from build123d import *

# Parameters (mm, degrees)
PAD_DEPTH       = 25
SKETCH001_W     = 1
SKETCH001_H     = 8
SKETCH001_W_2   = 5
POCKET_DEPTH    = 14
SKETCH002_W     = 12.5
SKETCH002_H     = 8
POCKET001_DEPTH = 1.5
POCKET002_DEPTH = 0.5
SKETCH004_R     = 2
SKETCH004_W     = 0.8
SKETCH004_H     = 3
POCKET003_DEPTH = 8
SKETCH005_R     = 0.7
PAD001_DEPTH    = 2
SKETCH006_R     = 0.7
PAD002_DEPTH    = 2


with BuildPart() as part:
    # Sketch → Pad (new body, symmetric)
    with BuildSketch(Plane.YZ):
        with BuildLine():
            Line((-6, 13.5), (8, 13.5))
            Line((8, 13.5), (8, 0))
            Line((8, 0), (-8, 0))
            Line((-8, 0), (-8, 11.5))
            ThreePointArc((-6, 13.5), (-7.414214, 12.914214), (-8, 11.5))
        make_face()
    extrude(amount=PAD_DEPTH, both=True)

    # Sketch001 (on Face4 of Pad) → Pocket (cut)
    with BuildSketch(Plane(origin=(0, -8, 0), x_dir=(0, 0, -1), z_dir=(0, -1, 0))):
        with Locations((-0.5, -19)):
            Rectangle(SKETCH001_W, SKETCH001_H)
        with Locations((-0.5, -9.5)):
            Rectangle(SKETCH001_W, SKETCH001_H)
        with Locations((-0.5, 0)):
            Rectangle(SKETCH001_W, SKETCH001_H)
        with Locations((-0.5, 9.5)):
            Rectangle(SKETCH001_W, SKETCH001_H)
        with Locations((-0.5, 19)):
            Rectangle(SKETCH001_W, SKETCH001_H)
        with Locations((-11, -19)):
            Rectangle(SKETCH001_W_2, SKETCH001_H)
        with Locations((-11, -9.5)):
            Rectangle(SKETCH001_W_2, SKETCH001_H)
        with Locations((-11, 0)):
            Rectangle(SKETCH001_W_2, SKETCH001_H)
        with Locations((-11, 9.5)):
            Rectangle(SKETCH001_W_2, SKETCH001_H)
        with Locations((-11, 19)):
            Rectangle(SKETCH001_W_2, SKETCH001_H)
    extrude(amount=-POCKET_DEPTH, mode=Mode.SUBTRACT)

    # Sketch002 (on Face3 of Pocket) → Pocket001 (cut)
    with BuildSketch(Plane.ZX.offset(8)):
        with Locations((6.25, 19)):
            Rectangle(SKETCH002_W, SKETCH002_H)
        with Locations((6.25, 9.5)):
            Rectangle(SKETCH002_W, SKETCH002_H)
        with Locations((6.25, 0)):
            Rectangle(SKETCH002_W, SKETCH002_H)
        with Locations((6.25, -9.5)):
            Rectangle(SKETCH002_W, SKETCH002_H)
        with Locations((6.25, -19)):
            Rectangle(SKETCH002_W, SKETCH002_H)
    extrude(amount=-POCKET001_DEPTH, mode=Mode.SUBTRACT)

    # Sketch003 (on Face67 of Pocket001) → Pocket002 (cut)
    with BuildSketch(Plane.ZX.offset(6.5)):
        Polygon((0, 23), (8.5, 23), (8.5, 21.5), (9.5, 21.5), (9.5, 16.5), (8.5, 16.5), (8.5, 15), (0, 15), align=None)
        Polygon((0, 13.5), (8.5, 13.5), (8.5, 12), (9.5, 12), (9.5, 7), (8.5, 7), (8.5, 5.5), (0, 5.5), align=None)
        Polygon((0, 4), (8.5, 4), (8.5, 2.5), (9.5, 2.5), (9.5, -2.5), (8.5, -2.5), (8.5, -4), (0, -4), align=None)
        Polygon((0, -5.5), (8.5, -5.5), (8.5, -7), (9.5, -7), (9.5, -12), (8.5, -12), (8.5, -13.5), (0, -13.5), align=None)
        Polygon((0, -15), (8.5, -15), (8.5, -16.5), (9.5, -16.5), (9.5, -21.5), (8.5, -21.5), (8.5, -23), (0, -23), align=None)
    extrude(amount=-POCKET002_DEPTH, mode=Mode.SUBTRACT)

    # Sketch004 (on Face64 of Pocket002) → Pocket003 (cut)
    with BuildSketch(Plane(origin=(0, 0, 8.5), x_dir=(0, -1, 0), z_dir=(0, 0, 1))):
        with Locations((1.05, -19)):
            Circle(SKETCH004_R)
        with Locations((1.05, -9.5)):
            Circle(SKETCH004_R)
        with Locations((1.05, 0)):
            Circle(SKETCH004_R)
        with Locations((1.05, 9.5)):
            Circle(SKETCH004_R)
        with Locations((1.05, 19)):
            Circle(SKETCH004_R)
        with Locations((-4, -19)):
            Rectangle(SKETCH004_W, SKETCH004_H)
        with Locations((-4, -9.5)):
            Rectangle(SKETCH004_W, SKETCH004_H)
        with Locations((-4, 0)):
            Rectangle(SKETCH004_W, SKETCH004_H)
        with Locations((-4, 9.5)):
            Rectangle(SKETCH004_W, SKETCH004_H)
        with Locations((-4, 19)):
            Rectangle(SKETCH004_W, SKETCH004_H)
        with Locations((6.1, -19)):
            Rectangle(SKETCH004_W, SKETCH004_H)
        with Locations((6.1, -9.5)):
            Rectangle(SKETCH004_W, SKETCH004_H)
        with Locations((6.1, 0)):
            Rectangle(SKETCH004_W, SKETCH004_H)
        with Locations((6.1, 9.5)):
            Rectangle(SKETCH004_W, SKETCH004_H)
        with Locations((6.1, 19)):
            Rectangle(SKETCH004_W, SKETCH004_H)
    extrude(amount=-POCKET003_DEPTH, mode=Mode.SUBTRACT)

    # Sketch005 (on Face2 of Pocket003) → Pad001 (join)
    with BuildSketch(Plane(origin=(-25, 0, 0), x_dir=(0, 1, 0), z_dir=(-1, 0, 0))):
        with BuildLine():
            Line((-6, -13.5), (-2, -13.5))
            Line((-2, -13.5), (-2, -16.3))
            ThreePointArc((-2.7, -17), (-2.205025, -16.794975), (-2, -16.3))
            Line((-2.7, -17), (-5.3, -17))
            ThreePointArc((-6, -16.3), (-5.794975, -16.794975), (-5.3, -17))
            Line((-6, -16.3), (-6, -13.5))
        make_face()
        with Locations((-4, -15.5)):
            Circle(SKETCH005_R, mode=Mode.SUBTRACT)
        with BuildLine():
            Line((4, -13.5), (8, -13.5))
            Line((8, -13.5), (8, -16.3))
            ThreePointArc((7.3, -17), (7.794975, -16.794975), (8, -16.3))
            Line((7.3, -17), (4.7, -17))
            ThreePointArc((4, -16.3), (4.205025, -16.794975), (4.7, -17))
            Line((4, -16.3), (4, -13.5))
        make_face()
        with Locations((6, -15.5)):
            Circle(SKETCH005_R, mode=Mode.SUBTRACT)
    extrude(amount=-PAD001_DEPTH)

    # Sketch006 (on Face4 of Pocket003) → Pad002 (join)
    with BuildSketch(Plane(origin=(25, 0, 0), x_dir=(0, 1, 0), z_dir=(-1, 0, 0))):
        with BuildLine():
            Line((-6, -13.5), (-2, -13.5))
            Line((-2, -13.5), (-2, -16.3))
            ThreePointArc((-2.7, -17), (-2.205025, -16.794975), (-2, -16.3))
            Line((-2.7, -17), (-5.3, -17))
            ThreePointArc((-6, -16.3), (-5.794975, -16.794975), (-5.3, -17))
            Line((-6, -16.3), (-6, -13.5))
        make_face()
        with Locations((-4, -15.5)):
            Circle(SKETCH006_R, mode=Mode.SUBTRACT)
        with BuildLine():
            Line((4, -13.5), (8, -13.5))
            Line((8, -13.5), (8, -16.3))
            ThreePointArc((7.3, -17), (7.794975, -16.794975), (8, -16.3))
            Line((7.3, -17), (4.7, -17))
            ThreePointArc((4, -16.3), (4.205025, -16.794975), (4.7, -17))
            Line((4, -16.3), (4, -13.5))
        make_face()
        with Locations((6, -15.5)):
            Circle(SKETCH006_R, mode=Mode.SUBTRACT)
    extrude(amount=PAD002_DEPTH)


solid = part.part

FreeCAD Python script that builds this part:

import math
import FreeCAD as App
import Part
import Sketcher
from FreeCAD import Vector
Q = App.Units.Quantity

doc = App.newDocument("Part")
params = doc.addObject("Spreadsheet::Sheet", "Params")
for row, (alias, value) in enumerate([
    ("sketch1_radius", "1.999999 mm"),
    ("sketch1_width", "14 mm"),
    ("sketch1_height", "11.5 mm"),
    ("pad1_length", "50 mm"),
    ("sketch2_width", "8 mm"),
    ("sketch2_height", "1 mm"),
    ("sketch2_height2", "5 mm"),
    ("pocket1_length", "14 mm"),
    ("sketch3_width", "8 mm"),
    ("sketch3_height", "12.5 mm"),
    ("pocket2_length", "1.5 mm"),
    ("sketch4_width", "8 mm"),
    ("sketch4_width2", "5 mm"),
    ("sketch4_height", "1 mm"),
    ("sketch4_height2", "8.5 mm"),
    ("pocket3_length", "0.5 mm"),
    ("sketch5_diameter", "4 mm"),
    ("sketch5_width", "3 mm"),
    ("sketch5_height", "0.8 mm"),
    ("pocket4_length", "8 mm"),
    ("sketch6_diameter", "1.4 mm"),
    ("sketch6_width", "4 mm"),
    ("sketch6_height", "2.8 mm"),
    ("pad2_length", "2 mm"),
    ("sketch7_diameter", "1.4 mm"),
    ("sketch7_width", "4 mm"),
    ("sketch7_height", "2.8 mm"),
    ("pad3_length", "2 mm"),
], start=1):
    params.set(f"A{row}", alias)
    params.set(f"B{row}", "=" + value)
    params.setAlias(f"B{row}", alias)

body = doc.addObject("PartDesign::Body", "Body")

sketch1 = body.newObject("Sketcher::SketchObject", "Sketch")
sketch1.AttachmentSupport = (doc.getObject("YZ_Plane"), [""])
sketch1.MapMode = "FlatFace"
sketch1.addGeometry([
    Part.LineSegment(Vector(8, 13.5, 0), Vector(-6, 13.5, 0)),
    Part.ArcOfCircle(Part.Circle(Vector(-6, 11.5, 0), Vector(0, 0, 1), 2), math.radians(90), math.radians(180)),
    Part.LineSegment(Vector(-8, 11.5, 0), Vector(-8, 0, 0)),
    Part.LineSegment(Vector(-8, 0, 0), Vector(8, 0, 0)),
    Part.LineSegment(Vector(8, 0, 0), Vector(8, 13.5, 0)),
], False)
sketch1.addConstraint([
    Sketcher.Constraint("Tangent", 0, 2, 1, 1),
    Sketcher.Constraint("Tangent", 1, 2, 2, 1),
    Sketcher.Constraint("Coincident", 2, 2, 3, 1),
    Sketcher.Constraint("Coincident", 3, 2, 4, 1),
    Sketcher.Constraint("Coincident", 4, 2, 0, 1),
    Sketcher.Constraint("Horizontal", 0),
    Sketcher.Constraint("Vertical", 2),
    Sketcher.Constraint("Horizontal", 3),
    Sketcher.Constraint("Vertical", 4),
    Sketcher.Constraint("Symmetric", 2, 2, 3, 2, -1, 1),
    Sketcher.Constraint("Radius", 1, Q("1.999999 mm")),
    Sketcher.Constraint("DistanceX", 0, 2, 0, 1, Q("14 mm")),
    Sketcher.Constraint("DistanceY", 2, 2, 2, 1, Q("11.5 mm")),
])
sketch1.setExpression("Constraints[10]", "Params.sketch1_radius")
sketch1.setExpression("Constraints[11]", "Params.sketch1_width")
sketch1.setExpression("Constraints[12]", "Params.sketch1_height")
pad1 = body.newObject("PartDesign::Pad", "Pad")
pad1.Profile = sketch1
pad1.setExpression("Length", "Params.pad1_length")
pad1.Midplane = True

sketch2 = body.newObject("Sketcher::SketchObject", "Sketch001")
sketch2.AttachmentSupport = (doc.getObject("XZ_Plane"), [""])
sketch2.MapMode = "FlatFace"
sketch2.AttachmentOffset = App.Placement(Vector(0, 0, 8), App.Rotation())
sketch2.addGeometry([
    Part.LineSegment(Vector(-15, 1, 0), Vector(-23, 1, 0)),
    Part.LineSegment(Vector(-23, 1, 0), Vector(-23, 0, 0)),
    Part.LineSegment(Vector(-23, 0, 0), Vector(-15, 0, 0)),
    Part.LineSegment(Vector(-15, 0, 0), Vector(-15, 1, 0)),
    Part.LineSegment(Vector(-5.5, 1, 0), Vector(-13.5, 1, 0)),
    Part.LineSegment(Vector(-13.5, 1, 0), Vector(-13.5, 0, 0)),
    Part.LineSegment(Vector(-13.5, 0, 0), Vector(-5.5, 0, 0)),
    Part.LineSegment(Vector(-5.5, 0, 0), Vector(-5.5, 1, 0)),
    Part.LineSegment(Vector(4, 1, 0), Vector(-4, 1, 0)),
    Part.LineSegment(Vector(-4, 1, 0), Vector(-4, 0, 0)),
    Part.LineSegment(Vector(-4, 0, 0), Vector(4, 0, 0)),
    Part.LineSegment(Vector(4, 0, 0), Vector(4, 1, 0)),
    Part.LineSegment(Vector(13.5, 1, 0), Vector(5.5, 1, 0)),
    Part.LineSegment(Vector(5.5, 1, 0), Vector(5.5, 0, 0)),
    Part.LineSegment(Vector(5.5, 0, 0), Vector(13.5, 0, 0)),
    Part.LineSegment(Vector(13.5, 0, 0), Vector(13.5, 1, 0)),
    Part.LineSegment(Vector(23, 1, 0), Vector(15, 1, 0)),
    Part.LineSegment(Vector(15, 1, 0), Vector(15, 0, 0)),
    Part.LineSegment(Vector(15, 0, 0), Vector(23, 0, 0)),
    Part.LineSegment(Vector(23, 0, 0), Vector(23, 1, 0)),
    Part.LineSegment(Vector(-15, 13.5, 0), Vector(-23, 13.5, 0)),
    Part.LineSegment(Vector(-23, 13.5, 0), Vector(-23, 8.5, 0)),
    Part.LineSegment(Vector(-23, 8.5, 0), Vector(-15, 8.5, 0)),
    Part.LineSegment(Vector(-15, 8.5, 0), Vector(-15, 13.5, 0)),
    Part.LineSegment(Vector(-5.5, 13.5, 0), Vector(-13.5, 13.5, 0)),
    Part.LineSegment(Vector(-13.5, 13.5, 0), Vector(-13.5, 8.5, 0)),
    Part.LineSegment(Vector(-13.5, 8.5, 0), Vector(-5.5, 8.5, 0)),
    Part.LineSegment(Vector(-5.5, 8.5, 0), Vector(-5.5, 13.5, 0)),
    Part.LineSegment(Vector(4, 13.5, 0), Vector(-4, 13.5, 0)),
    Part.LineSegment(Vector(-4, 13.5, 0), Vector(-4, 8.5, 0)),
    Part.LineSegment(Vector(-4, 8.5, 0), Vector(4, 8.5, 0)),
    Part.LineSegment(Vector(4, 8.5, 0), Vector(4, 13.5, 0)),
    Part.LineSegment(Vector(13.5, 13.5, 0), Vector(5.5, 13.5, 0)),
    Part.LineSegment(Vector(5.5, 13.5, 0), Vector(5.5, 8.5, 0)),
    Part.LineSegment(Vector(5.5, 8.5, 0), Vector(13.5, 8.5, 0)),
    Part.LineSegment(Vector(13.5, 8.5, 0), Vector(13.5, 13.5, 0)),
    Part.LineSegment(Vector(23, 13.5, 0), Vector(15, 13.5, 0)),
    Part.LineSegment(Vector(15, 13.5, 0), Vector(15, 8.5, 0)),
    Part.LineSegment(Vector(15, 8.5, 0), Vector(23, 8.5, 0)),
    Part.LineSegment(Vector(23, 8.5, 0), Vector(23, 13.5, 0)),
], False)
sketch2.addConstraint([
    Sketcher.Constraint("Coincident", 0, 2, 1, 1),
    Sketcher.Constraint("Coincident", 1, 2, 2, 1),
    Sketcher.Constraint("Coincident", 2, 2, 3, 1),
    Sketcher.Constraint("Coincident", 3, 2, 0, 1),
    Sketcher.Constraint("Coincident", 4, 2, 5, 1),
    Sketcher.Constraint("Coincident", 5, 2, 6, 1),
    Sketcher.Constraint("Coincident", 6, 2, 7, 1),
    Sketcher.Constraint("Coincident", 7, 2, 4, 1),
    Sketcher.Constraint("Coincident", 8, 2, 9, 1),
    Sketcher.Constraint("Coincident", 9, 2, 10, 1),
    Sketcher.Constraint("Coincident", 10, 2, 11, 1),
    Sketcher.Constraint("Coincident", 11, 2, 8, 1),
    Sketcher.Constraint("Coincident", 12, 2, 13, 1),
    Sketcher.Constraint("Coincident", 13, 2, 14, 1),
    Sketcher.Constraint("Coincident", 14, 2, 15, 1),
    Sketcher.Constraint("Coincident", 15, 2, 12, 1),
    Sketcher.Constraint("Coincident", 16, 2, 17, 1),
    Sketcher.Constraint("Coincident", 17, 2, 18, 1),
    Sketcher.Constraint("Coincident", 18, 2, 19, 1),
    Sketcher.Constraint("Coincident", 19, 2, 16, 1),
    Sketcher.Constraint("Coincident", 20, 2, 21, 1),
    Sketcher.Constraint("Coincident", 21, 2, 22, 1),
    Sketcher.Constraint("Coincident", 22, 2, 23, 1),
    Sketcher.Constraint("Coincident", 23, 2, 20, 1),
    Sketcher.Constraint("Coincident", 24, 2, 25, 1),
    Sketcher.Constraint("Coincident", 25, 2, 26, 1),
    Sketcher.Constraint("Coincident", 26, 2, 27, 1),
    Sketcher.Constraint("Coincident", 27, 2, 24, 1),
    Sketcher.Constraint("Coincident", 28, 2, 29, 1),
    Sketcher.Constraint("Coincident", 29, 2, 30, 1),
    Sketcher.Constraint("Coincident", 30, 2, 31, 1),
    Sketcher.Constraint("Coincident", 31, 2, 28, 1),
    Sketcher.Constraint("Coincident", 32, 2, 33, 1),
    Sketcher.Constraint("Coincident", 33, 2, 34, 1),
    Sketcher.Constraint("Coincident", 34, 2, 35, 1),
    Sketcher.Constraint("Coincident", 35, 2, 32, 1),
    Sketcher.Constraint("Coincident", 36, 2, 37, 1),
    Sketcher.Constraint("Coincident", 37, 2, 38, 1),
    Sketcher.Constraint("Coincident", 38, 2, 39, 1),
    Sketcher.Constraint("Coincident", 39, 2, 36, 1),
    Sketcher.Constraint("Horizontal", 0),
    Sketcher.Constraint("Vertical", 1),
    Sketcher.Constraint("Horizontal", 2),
    Sketcher.Constraint("Vertical", 3),
    Sketcher.Constraint("Horizontal", 4),
    Sketcher.Constraint("Vertical", 5),
    Sketcher.Constraint("Horizontal", 6),
    Sketcher.Constraint("Vertical", 7),
    Sketcher.Constraint("Horizontal", 8),
    Sketcher.Constraint("Vertical", 9),
    Sketcher.Constraint("Horizontal", 10),
    Sketcher.Constraint("Vertical", 11),
    Sketcher.Constraint("Horizontal", 12),
    Sketcher.Constraint("Vertical", 13),
    Sketcher.Constraint("Horizontal", 14),
    Sketcher.Constraint("Vertical", 15),
    Sketcher.Constraint("Horizontal", 16),
    Sketcher.Constraint("Vertical", 17),
    Sketcher.Constraint("Horizontal", 18),
    Sketcher.Constraint("Vertical", 19),
    Sketcher.Constraint("Horizontal", 20),
    Sketcher.Constraint("Vertical", 21),
    Sketcher.Constraint("Horizontal", 22),
    Sketcher.Constraint("Vertical", 23),
    Sketcher.Constraint("Horizontal", 24),
    Sketcher.Constraint("Vertical", 25),
    Sketcher.Constraint("Horizontal", 26),
    Sketcher.Constraint("Vertical", 27),
    Sketcher.Constraint("Horizontal", 28),
    Sketcher.Constraint("Vertical", 29),
    Sketcher.Constraint("Horizontal", 30),
    Sketcher.Constraint("Vertical", 31),
    Sketcher.Constraint("Horizontal", 32),
    Sketcher.Constraint("Vertical", 33),
    Sketcher.Constraint("Horizontal", 34),
    Sketcher.Constraint("Vertical", 35),
    Sketcher.Constraint("Horizontal", 36),
    Sketcher.Constraint("Vertical", 37),
    Sketcher.Constraint("Horizontal", 38),
    Sketcher.Constraint("Vertical", 39),
    Sketcher.Constraint("Symmetric", 9, 2, 10, 2, -1, 1),
    Sketcher.Constraint("Symmetric", 6, 2, 13, 2, -1, 1),
    Sketcher.Constraint("Symmetric", 2, 2, 17, 2, -1, 1),
    Sketcher.Constraint("Symmetric", 5, 2, 14, 2, -2),
    Sketcher.Constraint("Symmetric", 1, 2, 18, 2, -2),
    Sketcher.Constraint("Symmetric", 27, 2, 32, 2, -2),
    Sketcher.Constraint("Symmetric", 25, 2, 34, 2, -2),
    Sketcher.Constraint("Symmetric", 23, 2, 36, 2, -2),
    Sketcher.Constraint("Symmetric", 21, 2, 38, 2, -2),
    Sketcher.Constraint("Horizontal", 3, 2, 4, 2),
    Sketcher.Constraint("Horizontal", 7, 2, 8, 2),
    Sketcher.Constraint("Horizontal", 11, 2, 12, 2),
    Sketcher.Constraint("Horizontal", 15, 2, 16, 2),
    Sketcher.Constraint("Horizontal", 23, 2, 24, 2),
    Sketcher.Constraint("Horizontal", 22, 2, 25, 2),
    Sketcher.Constraint("Horizontal", 27, 2, 28, 2),
    Sketcher.Constraint("Horizontal", 26, 2, 29, 2),
    Sketcher.Constraint("Vertical", 1, 2, 20, 2),
    Sketcher.Constraint("Vertical", 3, 2, 22, 2),
    Sketcher.Constraint("Vertical", 5, 2, 24, 2),
    Sketcher.Constraint("Vertical", 7, 2, 26, 2),
    Sketcher.Constraint("Vertical", 9, 2, 28, 2),
    Sketcher.Constraint("Vertical", 11, 2, 30, 2),
    Sketcher.Constraint("Equal", 2, 4),
    Sketcher.Constraint("Equal", 6, 8),
    Sketcher.Constraint("DistanceX", 0, 2, 0, 1, Q("8 mm")),
    Sketcher.Constraint("DistanceY", 1, 2, 1, 1, Q("1 mm")),
    Sketcher.Constraint("DistanceY", 21, 2, 21, 1, Q("5 mm")),
    Sketcher.Constraint("DistanceX", 0, 2, -1, 1, Q("23 mm")),
    Sketcher.Constraint("DistanceX", 7, 2, 12, 2, Q("11 mm")),
    Sketcher.Constraint("DistanceY", -1, 1, 20, 2, Q("13.5 mm")),
])
sketch2.setExpression("Constraints[105]", "Params.sketch2_width")
sketch2.setExpression("Constraints[106]", "Params.sketch2_height")
sketch2.setExpression("Constraints[107]", "Params.sketch2_height2")
pocket1 = body.newObject("PartDesign::Pocket", "Pocket")
pocket1.Profile = sketch2
pocket1.setExpression("Length", "Params.pocket1_length")

sketch3 = body.newObject("Sketcher::SketchObject", "Sketch002")
sketch3.AttachmentSupport = (doc.getObject("XZ_Plane"), [""])
sketch3.MapMode = "FlatFace"
sketch3.AttachmentOffset = App.Placement(Vector(0, 0, -8), App.Rotation())
sketch3.addGeometry([
    Part.LineSegment(Vector(23, 0, 0), Vector(15, 0, 0)),
    Part.LineSegment(Vector(15, 0, 0), Vector(15, 12, 0)),
    Part.LineSegment(Vector(15, 12, 0), Vector(23, 12, 0)),
    Part.LineSegment(Vector(23, 12, 0), Vector(23, 0, 0)),
    Part.LineSegment(Vector(14, 0, 0), Vector(6, 0, 0)),
    Part.LineSegment(Vector(6, 0, 0), Vector(6, 12, 0)),
    Part.LineSegment(Vector(6, 12, 0), Vector(14, 12, 0)),
    Part.LineSegment(Vector(14, 12, 0), Vector(14, 0, 0)),
    Part.LineSegment(Vector(4, 0, 0), Vector(-4, 0, 0)),
    Part.LineSegment(Vector(-4, 0, 0), Vector(-4, 12, 0)),
    Part.LineSegment(Vector(-4, 12, 0), Vector(4, 12, 0)),
    Part.LineSegment(Vector(4, 12, 0), Vector(4, 0, 0)),
    Part.LineSegment(Vector(-6, 0, 0), Vector(-14, 0, 0)),
    Part.LineSegment(Vector(-14, 0, 0), Vector(-14, 12, 0)),
    Part.LineSegment(Vector(-14, 12, 0), Vector(-6, 12, 0)),
    Part.LineSegment(Vector(-6, 12, 0), Vector(-6, 0, 0)),
    Part.LineSegment(Vector(-15, 0, 0), Vector(-23, 0, 0)),
    Part.LineSegment(Vector(-23, 0, 0), Vector(-23, 12, 0)),
    Part.LineSegment(Vector(-23, 12, 0), Vector(-15, 12, 0)),
    Part.LineSegment(Vector(-15, 12, 0), Vector(-15, 0, 0)),
], False)
sketch3.addConstraint([
    Sketcher.Constraint("Coincident", 0, 2, 1, 1),
    Sketcher.Constraint("Coincident", 1, 2, 2, 1),
    Sketcher.Constraint("Coincident", 2, 2, 3, 1),
    Sketcher.Constraint("Coincident", 3, 2, 0, 1),
    Sketcher.Constraint("Coincident", 4, 2, 5, 1),
    Sketcher.Constraint("Coincident", 5, 2, 6, 1),
    Sketcher.Constraint("Coincident", 6, 2, 7, 1),
    Sketcher.Constraint("Coincident", 7, 2, 4, 1),
    Sketcher.Constraint("Coincident", 8, 2, 9, 1),
    Sketcher.Constraint("Coincident", 9, 2, 10, 1),
    Sketcher.Constraint("Coincident", 10, 2, 11, 1),
    Sketcher.Constraint("Coincident", 11, 2, 8, 1),
    Sketcher.Constraint("Coincident", 12, 2, 13, 1),
    Sketcher.Constraint("Coincident", 13, 2, 14, 1),
    Sketcher.Constraint("Coincident", 14, 2, 15, 1),
    Sketcher.Constraint("Coincident", 15, 2, 12, 1),
    Sketcher.Constraint("Coincident", 16, 2, 17, 1),
    Sketcher.Constraint("Coincident", 17, 2, 18, 1),
    Sketcher.Constraint("Coincident", 18, 2, 19, 1),
    Sketcher.Constraint("Coincident", 19, 2, 16, 1),
    Sketcher.Constraint("Horizontal", 0),
    Sketcher.Constraint("Vertical", 1),
    Sketcher.Constraint("Horizontal", 2),
    Sketcher.Constraint("Vertical", 3),
    Sketcher.Constraint("Horizontal", 4),
    Sketcher.Constraint("Vertical", 5),
    Sketcher.Constraint("Horizontal", 6),
    Sketcher.Constraint("Vertical", 7),
    Sketcher.Constraint("Horizontal", 8),
    Sketcher.Constraint("Vertical", 9),
    Sketcher.Constraint("Horizontal", 10),
    Sketcher.Constraint("Vertical", 11),
    Sketcher.Constraint("Horizontal", 12),
    Sketcher.Constraint("Vertical", 13),
    Sketcher.Constraint("Horizontal", 14),
    Sketcher.Constraint("Vertical", 15),
    Sketcher.Constraint("Horizontal", 16),
    Sketcher.Constraint("Vertical", 17),
    Sketcher.Constraint("Horizontal", 18),
    Sketcher.Constraint("Vertical", 19),
    Sketcher.Constraint("Symmetric", 8, 2, 11, 2, -1, 1),
    Sketcher.Constraint("Symmetric", 7, 2, 12, 2, -1, 1),
    Sketcher.Constraint("Symmetric", 3, 2, 16, 2, -1, 1),
    Sketcher.Constraint("Symmetric", 5, 2, 14, 2, -2),
    Sketcher.Constraint("Symmetric", 1, 2, 18, 2, -2),
    Sketcher.Constraint("PointOnObject", 0, 2, -1),
    Sketcher.Constraint("PointOnObject", 4, 2, -1),
    Sketcher.Constraint("Horizontal", 2, 2, 5, 2),
    Sketcher.Constraint("Horizontal", 6, 2, 9, 2),
    Sketcher.Constraint("Equal", 2, 4),
    Sketcher.Constraint("Equal", 6, 8),
    Sketcher.Constraint("DistanceX", 0, 2, 0, 1, Q("8 mm")),
    Sketcher.Constraint("DistanceY", 1, 1, 1, 2, Q("12.5 mm")),
    Sketcher.Constraint("DistanceX", -1, 1, 0, 2, Q("15 mm")),
    Sketcher.Constraint("DistanceX", 12, 2, 4, 2, Q("19 mm")),
])
sketch3.setExpression("Constraints[51]", "Params.sketch3_width")
sketch3.setExpression("Constraints[52]", "Params.sketch3_height")
pocket2 = body.newObject("PartDesign::Pocket", "Pocket001")
pocket2.Profile = sketch3
pocket2.setExpression("Length", "Params.pocket2_length")
pocket2.Reversed = True

sketch4 = body.newObject("Sketcher::SketchObject", "Sketch003")
sketch4.AttachmentSupport = (doc.getObject("XZ_Plane"), [""])
sketch4.MapMode = "FlatFace"
sketch4.AttachmentOffset = App.Placement(Vector(0, 0, -6.5), App.Rotation())
sketch4.addGeometry([
    Part.LineSegment(Vector(23, 8.5, 0), Vector(23, 0, 0)),
    Part.LineSegment(Vector(23, 0, 0), Vector(15, 0, 0)),
    Part.LineSegment(Vector(15, 0, 0), Vector(15, 8.5, 0)),
    Part.LineSegment(Vector(15, 8.5, 0), Vector(16.5, 8.5, 0)),
    Part.LineSegment(Vector(16.5, 8.5, 0), Vector(16.5, 9.5, 0)),
    Part.LineSegment(Vector(16.5, 9.5, 0), Vector(21.5, 9.5, 0)),
    Part.LineSegment(Vector(21.5, 9.5, 0), Vector(21.5, 8.5, 0)),
    Part.LineSegment(Vector(21.5, 8.5, 0), Vector(23, 8.5, 0)),
    Part.LineSegment(Vector(13.5, 8.5, 0), Vector(13.5, 0, 0)),
    Part.LineSegment(Vector(13.5, 0, 0), Vector(5.5, 0, 0)),
    Part.LineSegment(Vector(5.5, 0, 0), Vector(5.5, 8.5, 0)),
    Part.LineSegment(Vector(5.5, 8.5, 0), Vector(7, 8.5, 0)),
    Part.LineSegment(Vector(7, 8.5, 0), Vector(7, 9.5, 0)),
    Part.LineSegment(Vector(7, 9.5, 0), Vector(12, 9.5, 0)),
    Part.LineSegment(Vector(12, 9.5, 0), Vector(12, 8.5, 0)),
    Part.LineSegment(Vector(12, 8.5, 0), Vector(13.5, 8.5, 0)),
    Part.LineSegment(Vector(4, 8.5, 0), Vector(4, 0, 0)),
    Part.LineSegment(Vector(4, 0, 0), Vector(-4, 0, 0)),
    Part.LineSegment(Vector(-4, 0, 0), Vector(-4, 8.5, 0)),
    Part.LineSegment(Vector(-4, 8.5, 0), Vector(-2.5, 8.5, 0)),
    Part.LineSegment(Vector(-2.5, 8.5, 0), Vector(-2.5, 9.5, 0)),
    Part.LineSegment(Vector(-2.5, 9.5, 0), Vector(2.5, 9.5, 0)),
    Part.LineSegment(Vector(2.5, 9.5, 0), Vector(2.5, 8.5, 0)),
    Part.LineSegment(Vector(2.5, 8.5, 0), Vector(4, 8.5, 0)),
    Part.LineSegment(Vector(-5.5, 8.5, 0), Vector(-5.5, 0, 0)),
    Part.LineSegment(Vector(-5.5, 0, 0), Vector(-13.5, 0, 0)),
    Part.LineSegment(Vector(-13.5, 0, 0), Vector(-13.5, 8.5, 0)),
    Part.LineSegment(Vector(-13.5, 8.5, 0), Vector(-12, 8.5, 0)),
    Part.LineSegment(Vector(-12, 8.5, 0), Vector(-12, 9.5, 0)),
    Part.LineSegment(Vector(-12, 9.5, 0), Vector(-7, 9.5, 0)),
    Part.LineSegment(Vector(-7, 9.5, 0), Vector(-7, 8.5, 0)),
    Part.LineSegment(Vector(-7, 8.5, 0), Vector(-5.5, 8.5, 0)),
    Part.LineSegment(Vector(-15, 8.5, 0), Vector(-15, 0, 0)),
    Part.LineSegment(Vector(-15, 0, 0), Vector(-23, 0, 0)),
    Part.LineSegment(Vector(-23, 0, 0), Vector(-23, 8.5, 0)),
    Part.LineSegment(Vector(-23, 8.5, 0), Vector(-21.5, 8.5, 0)),
    Part.LineSegment(Vector(-21.5, 8.5, 0), Vector(-21.5, 9.5, 0)),
    Part.LineSegment(Vector(-21.5, 9.5, 0), Vector(-16.5, 9.5, 0)),
    Part.LineSegment(Vector(-16.5, 9.5, 0), Vector(-16.5, 8.5, 0)),
    Part.LineSegment(Vector(-16.5, 8.5, 0), Vector(-15, 8.5, 0)),
], False)
sketch4.addConstraint([
    Sketcher.Constraint("Coincident", 0, 2, 1, 1),
    Sketcher.Constraint("Coincident", 1, 2, 2, 1),
    Sketcher.Constraint("Coincident", 2, 2, 3, 1),
    Sketcher.Constraint("Coincident", 3, 2, 4, 1),
    Sketcher.Constraint("Coincident", 4, 2, 5, 1),
    Sketcher.Constraint("Coincident", 5, 2, 6, 1),
    Sketcher.Constraint("Coincident", 6, 2, 7, 1),
    Sketcher.Constraint("Coincident", 7, 2, 0, 1),
    Sketcher.Constraint("Coincident", 8, 2, 9, 1),
    Sketcher.Constraint("Coincident", 9, 2, 10, 1),
    Sketcher.Constraint("Coincident", 10, 2, 11, 1),
    Sketcher.Constraint("Coincident", 11, 2, 12, 1),
    Sketcher.Constraint("Coincident", 12, 2, 13, 1),
    Sketcher.Constraint("Coincident", 13, 2, 14, 1),
    Sketcher.Constraint("Coincident", 14, 2, 15, 1),
    Sketcher.Constraint("Coincident", 15, 2, 8, 1),
    Sketcher.Constraint("Coincident", 16, 2, 17, 1),
    Sketcher.Constraint("Coincident", 17, 2, 18, 1),
    Sketcher.Constraint("Coincident", 18, 2, 19, 1),
    Sketcher.Constraint("Coincident", 19, 2, 20, 1),
    Sketcher.Constraint("Coincident", 20, 2, 21, 1),
    Sketcher.Constraint("Coincident", 21, 2, 22, 1),
    Sketcher.Constraint("Coincident", 22, 2, 23, 1),
    Sketcher.Constraint("Coincident", 23, 2, 16, 1),
    Sketcher.Constraint("Coincident", 24, 2, 25, 1),
    Sketcher.Constraint("Coincident", 25, 2, 26, 1),
    Sketcher.Constraint("Coincident", 26, 2, 27, 1),
    Sketcher.Constraint("Coincident", 27, 2, 28, 1),
    Sketcher.Constraint("Coincident", 28, 2, 29, 1),
    Sketcher.Constraint("Coincident", 29, 2, 30, 1),
    Sketcher.Constraint("Coincident", 30, 2, 31, 1),
    Sketcher.Constraint("Coincident", 31, 2, 24, 1),
    Sketcher.Constraint("Coincident", 32, 2, 33, 1),
    Sketcher.Constraint("Coincident", 33, 2, 34, 1),
    Sketcher.Constraint("Coincident", 34, 2, 35, 1),
    Sketcher.Constraint("Coincident", 35, 2, 36, 1),
    Sketcher.Constraint("Coincident", 36, 2, 37, 1),
    Sketcher.Constraint("Coincident", 37, 2, 38, 1),
    Sketcher.Constraint("Coincident", 38, 2, 39, 1),
    Sketcher.Constraint("Coincident", 39, 2, 32, 1),
    Sketcher.Constraint("Vertical", 0),
    Sketcher.Constraint("Horizontal", 1),
    Sketcher.Constraint("Vertical", 2),
    Sketcher.Constraint("Horizontal", 3),
    Sketcher.Constraint("Vertical", 4),
    Sketcher.Constraint("Horizontal", 5),
    Sketcher.Constraint("Vertical", 6),
    Sketcher.Constraint("Horizontal", 7),
    Sketcher.Constraint("Vertical", 8),
    Sketcher.Constraint("Horizontal", 9),
    Sketcher.Constraint("Vertical", 10),
    Sketcher.Constraint("Horizontal", 11),
    Sketcher.Constraint("Vertical", 12),
    Sketcher.Constraint("Horizontal", 13),
    Sketcher.Constraint("Vertical", 14),
    Sketcher.Constraint("Horizontal", 15),
    Sketcher.Constraint("Vertical", 16),
    Sketcher.Constraint("Horizontal", 17),
    Sketcher.Constraint("Vertical", 18),
    Sketcher.Constraint("Horizontal", 19),
    Sketcher.Constraint("Vertical", 20),
    Sketcher.Constraint("Horizontal", 21),
    Sketcher.Constraint("Vertical", 22),
    Sketcher.Constraint("Horizontal", 23),
    Sketcher.Constraint("Vertical", 24),
    Sketcher.Constraint("Horizontal", 25),
    Sketcher.Constraint("Vertical", 26),
    Sketcher.Constraint("Horizontal", 27),
    Sketcher.Constraint("Vertical", 28),
    Sketcher.Constraint("Horizontal", 29),
    Sketcher.Constraint("Vertical", 30),
    Sketcher.Constraint("Horizontal", 31),
    Sketcher.Constraint("Vertical", 32),
    Sketcher.Constraint("Horizontal", 33),
    Sketcher.Constraint("Vertical", 34),
    Sketcher.Constraint("Horizontal", 35),
    Sketcher.Constraint("Vertical", 36),
    Sketcher.Constraint("Horizontal", 37),
    Sketcher.Constraint("Vertical", 38),
    Sketcher.Constraint("Horizontal", 39),
    Sketcher.Constraint("Symmetric", 16, 2, 17, 2, -1, 1),
    Sketcher.Constraint("Symmetric", 9, 2, 24, 2, -1, 1),
    Sketcher.Constraint("Symmetric", 1, 2, 32, 2, -1, 1),
    Sketcher.Constraint("Symmetric", 19, 2, 22, 2, -2),
    Sketcher.Constraint("Symmetric", 8, 2, 25, 2, -2),
    Sketcher.Constraint("Symmetric", 14, 2, 27, 2, -2),
    Sketcher.Constraint("Symmetric", 12, 2, 29, 2, -2),
    Sketcher.Constraint("Symmetric", 0, 2, 33, 2, -2),
    Sketcher.Constraint("Symmetric", 6, 2, 35, 2, -2),
    Sketcher.Constraint("Symmetric", 4, 2, 37, 2, -2),
    Sketcher.Constraint("Horizontal", 3, 2, 6, 2),
    Sketcher.Constraint("Horizontal", 7, 2, 10, 2),
    Sketcher.Constraint("Horizontal", 5, 2, 12, 2),
    Sketcher.Constraint("Horizontal", 11, 2, 14, 2),
    Sketcher.Constraint("Horizontal", 15, 2, 18, 2),
    Sketcher.Constraint("Horizontal", 13, 2, 20, 2),
    Sketcher.Constraint("Horizontal", 27, 2, 30, 2),
    Sketcher.Constraint("Horizontal", 35, 2, 38, 2),
    Sketcher.Constraint("Equal", 3, 7),
    Sketcher.Constraint("Equal", 1, 9),
    Sketcher.Constraint("Equal", 7, 11),
    Sketcher.Constraint("Equal", 5, 13),
    Sketcher.Constraint("Equal", 9, 17),
    Sketcher.Constraint("Equal", 15, 19),
    Sketcher.Constraint("DistanceX", 1, 2, 1, 1, Q("8 mm")),
    Sketcher.Constraint("DistanceX", 5, 1, 5, 2, Q("5 mm")),
    Sketcher.Constraint("DistanceY", 4, 1, 4, 2, Q("1 mm")),
    Sketcher.Constraint("DistanceY", 0, 2, 0, 1, Q("8.5 mm")),
    Sketcher.Constraint("DistanceX", -1, 1, 0, 2, Q("23 mm")),
    Sketcher.Constraint("DistanceX", -1, 1, 11, 2, Q("7 mm")),
])
sketch4.setExpression("Constraints[104]", "Params.sketch4_width")
sketch4.setExpression("Constraints[105]", "Params.sketch4_width2")
sketch4.setExpression("Constraints[106]", "Params.sketch4_height")
sketch4.setExpression("Constraints[107]", "Params.sketch4_height2")
pocket3 = body.newObject("PartDesign::Pocket", "Pocket002")
pocket3.Profile = sketch4
pocket3.setExpression("Length", "Params.pocket3_length")
pocket3.Reversed = True

sketch5 = body.newObject("Sketcher::SketchObject", "Sketch004")
sketch5.AttachmentSupport = (doc.getObject("XY_Plane"), [""])
sketch5.MapMode = "FlatFace"
sketch5.AttachmentOffset = App.Placement(Vector(0, 0, 8.5), App.Rotation())
sketch5.addGeometry([
    Part.Circle(Vector(-19, -1.1, 0), Vector(0, 0, 1), 2),
    Part.Circle(Vector(-9.5, -1.1, 0), Vector(0, 0, 1), 2),
    Part.Circle(Vector(0, -1.1, 0), Vector(0, 0, 1), 2),
    Part.Circle(Vector(9.5, -1.1, 0), Vector(0, 0, 1), 2),
    Part.Circle(Vector(19, -1.1, 0), Vector(0, 0, 1), 2),
    Part.LineSegment(Vector(-17.5, 4.4, 0), Vector(-20.5, 4.4, 0)),
    Part.LineSegment(Vector(-20.5, 4.4, 0), Vector(-20.5, 3.6, 0)),
    Part.LineSegment(Vector(-20.5, 3.6, 0), Vector(-17.5, 3.6, 0)),
    Part.LineSegment(Vector(-17.5, 3.6, 0), Vector(-17.5, 4.4, 0)),
    Part.LineSegment(Vector(-8, 4.4, 0), Vector(-11, 4.4, 0)),
    Part.LineSegment(Vector(-11, 4.4, 0), Vector(-11, 3.6, 0)),
    Part.LineSegment(Vector(-11, 3.6, 0), Vector(-8, 3.6, 0)),
    Part.LineSegment(Vector(-8, 3.6, 0), Vector(-8, 4.4, 0)),
    Part.LineSegment(Vector(1.5, 4.4, 0), Vector(-1.5, 4.4, 0)),
    Part.LineSegment(Vector(-1.5, 4.4, 0), Vector(-1.5, 3.6, 0)),
    Part.LineSegment(Vector(-1.5, 3.6, 0), Vector(1.5, 3.6, 0)),
    Part.LineSegment(Vector(1.5, 3.6, 0), Vector(1.5, 4.4, 0)),
    Part.LineSegment(Vector(11, 4.4, 0), Vector(8, 4.4, 0)),
    Part.LineSegment(Vector(8, 4.4, 0), Vector(8, 3.6, 0)),
    Part.LineSegment(Vector(8, 3.6, 0), Vector(11, 3.6, 0)),
    Part.LineSegment(Vector(11, 3.6, 0), Vector(11, 4.4, 0)),
    Part.LineSegment(Vector(20.5, 4.4, 0), Vector(17.5, 4.4, 0)),
    Part.LineSegment(Vector(17.5, 4.4, 0), Vector(17.5, 3.6, 0)),
    Part.LineSegment(Vector(17.5, 3.6, 0), Vector(20.5, 3.6, 0)),
    Part.LineSegment(Vector(20.5, 3.6, 0), Vector(20.5, 4.4, 0)),
    Part.LineSegment(Vector(-17.5, -5.7, 0), Vector(-20.5, -5.7, 0)),
    Part.LineSegment(Vector(-20.5, -5.7, 0), Vector(-20.5, -6.5, 0)),
    Part.LineSegment(Vector(-20.5, -6.5, 0), Vector(-17.5, -6.5, 0)),
    Part.LineSegment(Vector(-17.5, -6.5, 0), Vector(-17.5, -5.7, 0)),
    Part.LineSegment(Vector(-8, -5.7, 0), Vector(-11, -5.7, 0)),
    Part.LineSegment(Vector(-11, -5.7, 0), Vector(-11, -6.5, 0)),
    Part.LineSegment(Vector(-11, -6.5, 0), Vector(-8, -6.5, 0)),
    Part.LineSegment(Vector(-8, -6.5, 0), Vector(-8, -5.7, 0)),
    Part.LineSegment(Vector(1.5, -5.7, 0), Vector(-1.5, -5.7, 0)),
    Part.LineSegment(Vector(-1.5, -5.7, 0), Vector(-1.5, -6.5, 0)),
    Part.LineSegment(Vector(-1.5, -6.5, 0), Vector(1.5, -6.5, 0)),
    Part.LineSegment(Vector(1.5, -6.5, 0), Vector(1.5, -5.7, 0)),
    Part.LineSegment(Vector(11, -5.7, 0), Vector(8, -5.7, 0)),
    Part.LineSegment(Vector(8, -5.7, 0), Vector(8, -6.5, 0)),
    Part.LineSegment(Vector(8, -6.5, 0), Vector(11, -6.5, 0)),
    Part.LineSegment(Vector(11, -6.5, 0), Vector(11, -5.7, 0)),
    Part.LineSegment(Vector(20.5, -5.7, 0), Vector(17.5, -5.7, 0)),
    Part.LineSegment(Vector(17.5, -5.7, 0), Vector(17.5, -6.5, 0)),
    Part.LineSegment(Vector(17.5, -6.5, 0), Vector(20.5, -6.5, 0)),
    Part.LineSegment(Vector(20.5, -6.5, 0), Vector(20.5, -5.7, 0)),
], False)
sketch5.addConstraint([
    Sketcher.Constraint("Coincident", 5, 2, 6, 1),
    Sketcher.Constraint("Coincident", 6, 2, 7, 1),
    Sketcher.Constraint("Coincident", 7, 2, 8, 1),
    Sketcher.Constraint("Coincident", 8, 2, 5, 1),
    Sketcher.Constraint("Coincident", 9, 2, 10, 1),
    Sketcher.Constraint("Coincident", 10, 2, 11, 1),
    Sketcher.Constraint("Coincident", 11, 2, 12, 1),
    Sketcher.Constraint("Coincident", 12, 2, 9, 1),
    Sketcher.Constraint("Coincident", 13, 2, 14, 1),
    Sketcher.Constraint("Coincident", 14, 2, 15, 1),
    Sketcher.Constraint("Coincident", 15, 2, 16, 1),
    Sketcher.Constraint("Coincident", 16, 2, 13, 1),
    Sketcher.Constraint("Coincident", 17, 2, 18, 1),
    Sketcher.Constraint("Coincident", 18, 2, 19, 1),
    Sketcher.Constraint("Coincident", 19, 2, 20, 1),
    Sketcher.Constraint("Coincident", 20, 2, 17, 1),
    Sketcher.Constraint("Coincident", 21, 2, 22, 1),
    Sketcher.Constraint("Coincident", 22, 2, 23, 1),
    Sketcher.Constraint("Coincident", 23, 2, 24, 1),
    Sketcher.Constraint("Coincident", 24, 2, 21, 1),
    Sketcher.Constraint("Coincident", 25, 2, 26, 1),
    Sketcher.Constraint("Coincident", 26, 2, 27, 1),
    Sketcher.Constraint("Coincident", 27, 2, 28, 1),
    Sketcher.Constraint("Coincident", 28, 2, 25, 1),
    Sketcher.Constraint("Coincident", 29, 2, 30, 1),
    Sketcher.Constraint("Coincident", 30, 2, 31, 1),
    Sketcher.Constraint("Coincident", 31, 2, 32, 1),
    Sketcher.Constraint("Coincident", 32, 2, 29, 1),
    Sketcher.Constraint("Coincident", 33, 2, 34, 1),
    Sketcher.Constraint("Coincident", 34, 2, 35, 1),
    Sketcher.Constraint("Coincident", 35, 2, 36, 1),
    Sketcher.Constraint("Coincident", 36, 2, 33, 1),
    Sketcher.Constraint("Coincident", 37, 2, 38, 1),
    Sketcher.Constraint("Coincident", 38, 2, 39, 1),
    Sketcher.Constraint("Coincident", 39, 2, 40, 1),
    Sketcher.Constraint("Coincident", 40, 2, 37, 1),
    Sketcher.Constraint("Coincident", 41, 2, 42, 1),
    Sketcher.Constraint("Coincident", 42, 2, 43, 1),
    Sketcher.Constraint("Coincident", 43, 2, 44, 1),
    Sketcher.Constraint("Coincident", 44, 2, 41, 1),
    Sketcher.Constraint("Horizontal", 5),
    Sketcher.Constraint("Vertical", 6),
    Sketcher.Constraint("Horizontal", 7),
    Sketcher.Constraint("Vertical", 8),
    Sketcher.Constraint("Horizontal", 9),
    Sketcher.Constraint("Vertical", 10),
    Sketcher.Constraint("Horizontal", 11),
    Sketcher.Constraint("Vertical", 12),
    Sketcher.Constraint("Horizontal", 13),
    Sketcher.Constraint("Vertical", 14),
    Sketcher.Constraint("Horizontal", 15),
    Sketcher.Constraint("Vertical", 16),
    Sketcher.Constraint("Horizontal", 17),
    Sketcher.Constraint("Vertical", 18),
    Sketcher.Constraint("Horizontal", 19),
    Sketcher.Constraint("Vertical", 20),
    Sketcher.Constraint("Horizontal", 21),
    Sketcher.Constraint("Vertical", 22),
    Sketcher.Constraint("Horizontal", 23),
    Sketcher.Constraint("Vertical", 24),
    Sketcher.Constraint("Horizontal", 25),
    Sketcher.Constraint("Vertical", 26),
    Sketcher.Constraint("Horizontal", 27),
    Sketcher.Constraint("Vertical", 28),
    Sketcher.Constraint("Horizontal", 29),
    Sketcher.Constraint("Vertical", 30),
    Sketcher.Constraint("Horizontal", 31),
    Sketcher.Constraint("Vertical", 32),
    Sketcher.Constraint("Horizontal", 33),
    Sketcher.Constraint("Vertical", 34),
    Sketcher.Constraint("Horizontal", 35),
    Sketcher.Constraint("Vertical", 36),
    Sketcher.Constraint("Horizontal", 37),
    Sketcher.Constraint("Vertical", 38),
    Sketcher.Constraint("Horizontal", 39),
    Sketcher.Constraint("Vertical", 40),
    Sketcher.Constraint("Horizontal", 41),
    Sketcher.Constraint("Vertical", 42),
    Sketcher.Constraint("Horizontal", 43),
    Sketcher.Constraint("Vertical", 44),
    Sketcher.Constraint("Equal", 0, 1),
    Sketcher.Constraint("Equal", 1, 2),
    Sketcher.Constraint("Equal", 2, 3),
    Sketcher.Constraint("Equal", 3, 4),
    Sketcher.Constraint("Symmetric", 1, 3, 3, 3, -2),
    Sketcher.Constraint("Symmetric", 0, 3, 4, 3, -2),
    Sketcher.Constraint("Symmetric", 12, 2, 17, 2, -2),
    Sketcher.Constraint("Symmetric", 10, 2, 19, 2, -2),
    Sketcher.Constraint("Symmetric", 8, 2, 21, 2, -2),
    Sketcher.Constraint("Symmetric", 6, 2, 23, 2, -2),
    Sketcher.Constraint("Symmetric", 32, 2, 37, 2, -2),
    Sketcher.Constraint("Symmetric", 30, 2, 39, 2, -2),
    Sketcher.Constraint("Symmetric", 28, 2, 41, 2, -2),
    Sketcher.Constraint("Symmetric", 26, 2, 43, 2, -2),
    Sketcher.Constraint("PointOnObject", 2, 3, -2),
    Sketcher.Constraint("Horizontal", 0, 3, 1, 3),
    Sketcher.Constraint("Horizontal", 1, 3, 2, 3),
    Sketcher.Constraint("Horizontal", 8, 2, 9, 2),
    Sketcher.Constraint("Horizontal", 7, 2, 10, 2),
    Sketcher.Constraint("Horizontal", 12, 2, 13, 2),
    Sketcher.Constraint("Horizontal", 11, 2, 14, 2),
    Sketcher.Constraint("Horizontal", 28, 2, 29, 2),
    Sketcher.Constraint("Horizontal", 27, 2, 30, 2),
    Sketcher.Constraint("Horizontal", 32, 2, 33, 2),
    Sketcher.Constraint("Horizontal", 31, 2, 34, 2),
    Sketcher.Constraint("Vertical", 6, 2, 25, 2),
    Sketcher.Constraint("Vertical", 8, 2, 27, 2),
    Sketcher.Constraint("Vertical", 10, 2, 29, 2),
    Sketcher.Constraint("Vertical", 12, 2, 31, 2),
    Sketcher.Constraint("Vertical", 14, 2, 33, 2),
    Sketcher.Constraint("Vertical", 16, 2, 35, 2),
    Sketcher.Constraint("Equal", 7, 9),
    Sketcher.Constraint("Equal", 11, 13),
    Sketcher.Constraint("Equal", 24, 26),
    Sketcher.Constraint("Diameter", 0, Q("4 mm")),
    Sketcher.Constraint("DistanceX", 5, 2, 5, 1, Q("3 mm")),
    Sketcher.Constraint("DistanceY", 6, 2, 6, 1, Q("0.8 mm")),
    Sketcher.Constraint("DistanceX", 0, 3, -1, 1, Q("19 mm")),
    Sketcher.Constraint("DistanceX", 9, 2, -1, 1, Q("11 mm")),
    Sketcher.Constraint("DistanceX", 1, 3, 3, 3, Q("19 mm")),
    Sketcher.Constraint("DistanceX", 5, 2, 1, 3, Q("11 mm")),
    Sketcher.Constraint("DistanceX", 1, 3, 14, 2, Q("8 mm")),
    Sketcher.Constraint("DistanceY", -1, 1, 5, 2, Q("4.4 mm")),
    Sketcher.Constraint("DistanceY", 25, 2, -1, 1, Q("5.7 mm")),
    Sketcher.Constraint("DistanceY", 0, 3, -1, 1, Q("1.05 mm")),
])
sketch5.setExpression("Constraints[114]", "Params.sketch5_diameter")
sketch5.setExpression("Constraints[115]", "Params.sketch5_width")
sketch5.setExpression("Constraints[116]", "Params.sketch5_height")
pocket4 = body.newObject("PartDesign::Pocket", "Pocket003")
pocket4.Profile = sketch5
pocket4.setExpression("Length", "Params.pocket4_length")

sketch6 = body.newObject("Sketcher::SketchObject", "Sketch005")
sketch6.AttachmentSupport = (doc.getObject("YZ_Plane"), [""])
sketch6.MapMode = "FlatFace"
sketch6.AttachmentOffset = App.Placement(Vector(0, 0, -25), App.Rotation())
sketch6.addGeometry([
    Part.LineSegment(Vector(-2, 13.5, 0), Vector(-6, 13.5, 0)),
    Part.LineSegment(Vector(-6, 13.5, 0), Vector(-6, 16.3, 0)),
    Part.ArcOfCircle(Part.Circle(Vector(-5.3, 16.3, 0), Vector(0, 0, 1), 0.7), math.radians(90), math.radians(180)),
    Part.LineSegment(Vector(-5.3, 17, 0), Vector(-2.7, 17, 0)),
    Part.ArcOfCircle(Part.Circle(Vector(-2.7, 16.3, 0), Vector(0, 0, 1), 0.7), math.radians(0), math.radians(90)),
    Part.LineSegment(Vector(-2, 16.3, 0), Vector(-2, 13.5, 0)),
    Part.Circle(Vector(-4, 15.5, 0), Vector(0, 0, 1), 0.7),
    Part.LineSegment(Vector(8, 13.5, 0), Vector(4, 13.5, 0)),
    Part.LineSegment(Vector(4, 13.5, 0), Vector(4, 16.3, 0)),
    Part.ArcOfCircle(Part.Circle(Vector(4.7, 16.3, 0), Vector(0, 0, 1), 0.7), math.radians(90), math.radians(180)),
    Part.LineSegment(Vector(4.7, 17, 0), Vector(7.3, 17, 0)),
    Part.ArcOfCircle(Part.Circle(Vector(7.3, 16.3, 0), Vector(0, 0, 1), 0.7), math.radians(0), math.radians(90)),
    Part.LineSegment(Vector(8, 16.3, 0), Vector(8, 13.5, 0)),
    Part.Circle(Vector(6, 15.5, 0), Vector(0, 0, 1), 0.7),
], False)
sketch6.addConstraint([
    Sketcher.Constraint("Coincident", 0, 2, 1, 1),
    Sketcher.Constraint("Tangent", 1, 2, 2, 2),
    Sketcher.Constraint("Tangent", 2, 1, 3, 1),
    Sketcher.Constraint("Tangent", 3, 2, 4, 2),
    Sketcher.Constraint("Tangent", 4, 1, 5, 1),
    Sketcher.Constraint("Coincident", 5, 2, 0, 1),
    Sketcher.Constraint("Coincident", 7, 2, 8, 1),
    Sketcher.Constraint("Tangent", 8, 2, 9, 2),
    Sketcher.Constraint("Tangent", 9, 1, 10, 1),
    Sketcher.Constraint("Tangent", 10, 2, 11, 2),
    Sketcher.Constraint("Tangent", 11, 1, 12, 1),
    Sketcher.Constraint("Coincident", 12, 2, 7, 1),
    Sketcher.Constraint("Horizontal", 0),
    Sketcher.Constraint("Vertical", 1),
    Sketcher.Constraint("Horizontal", 3),
    Sketcher.Constraint("Vertical", 5),
    Sketcher.Constraint("Horizontal", 7),
    Sketcher.Constraint("Vertical", 8),
    Sketcher.Constraint("Horizontal", 10),
    Sketcher.Constraint("Vertical", 12),
    Sketcher.Constraint("Equal", 2, 4),
    Sketcher.Constraint("Equal", 4, 6),
    Sketcher.Constraint("Equal", 6, 9),
    Sketcher.Constraint("Equal", 9, 11),
    Sketcher.Constraint("Equal", 11, 13),
    Sketcher.Constraint("Horizontal", 4, 3, 9, 3),
    Sketcher.Constraint("Horizontal", 6, 3, 13, 3),
    Sketcher.Constraint("Horizontal", 5, 2, 7, 2),
    Sketcher.Constraint("Equal", 0, 7),
    Sketcher.Constraint("Diameter", 6, Q("1.4 mm")),
    Sketcher.Constraint("DistanceX", 0, 2, 0, 1, Q("4 mm")),
    Sketcher.Constraint("DistanceY", 1, 1, 1, 2, Q("2.8 mm")),
    Sketcher.Constraint("DistanceX", 6, 3, -1, 1, Q("4 mm")),
    Sketcher.Constraint("DistanceX", -1, 1, 13, 3, Q("6 mm")),
    Sketcher.Constraint("DistanceX", 0, 2, -1, 1, Q("6 mm")),
    Sketcher.Constraint("DistanceY", -1, 1, 2, 1, Q("17 mm")),
    Sketcher.Constraint("DistanceX", -1, 1, 7, 2, Q("4 mm")),
    Sketcher.Constraint("DistanceY", 0, 2, 6, 3, Q("2 mm")),
])
sketch6.setExpression("Constraints[29]", "Params.sketch6_diameter")
sketch6.setExpression("Constraints[30]", "Params.sketch6_width")
sketch6.setExpression("Constraints[31]", "Params.sketch6_height")
pad2 = body.newObject("PartDesign::Pad", "Pad001")
pad2.Profile = sketch6
pad2.setExpression("Length", "Params.pad2_length")

sketch7 = body.newObject("Sketcher::SketchObject", "Sketch006")
sketch7.AttachmentSupport = (doc.getObject("YZ_Plane"), [""])
sketch7.MapMode = "FlatFace"
sketch7.AttachmentOffset = App.Placement(Vector(0, 0, 25), App.Rotation())
sketch7.addGeometry([
    Part.LineSegment(Vector(-2, 13.5, 0), Vector(-6, 13.5, 0)),
    Part.LineSegment(Vector(-6, 13.5, 0), Vector(-6, 16.3, 0)),
    Part.ArcOfCircle(Part.Circle(Vector(-5.3, 16.3, 0), Vector(0, 0, 1), 0.7), math.radians(90), math.radians(180)),
    Part.LineSegment(Vector(-5.3, 17, 0), Vector(-2.7, 17, 0)),
    Part.ArcOfCircle(Part.Circle(Vector(-2.7, 16.3, 0), Vector(0, 0, 1), 0.7), math.radians(0), math.radians(90)),
    Part.LineSegment(Vector(-2, 16.3, 0), Vector(-2, 13.5, 0)),
    Part.Circle(Vector(-4, 15.5, 0), Vector(0, 0, 1), 0.7),
    Part.LineSegment(Vector(8, 13.5, 0), Vector(4, 13.5, 0)),
    Part.LineSegment(Vector(4, 13.5, 0), Vector(4, 16.3, 0)),
    Part.ArcOfCircle(Part.Circle(Vector(4.7, 16.3, 0), Vector(0, 0, 1), 0.7), math.radians(90), math.radians(180)),
    Part.LineSegment(Vector(4.7, 17, 0), Vector(7.3, 17, 0)),
    Part.ArcOfCircle(Part.Circle(Vector(7.3, 16.3, 0), Vector(0, 0, 1), 0.7), math.radians(0), math.radians(90)),
    Part.LineSegment(Vector(8, 16.3, 0), Vector(8, 13.5, 0)),
    Part.Circle(Vector(6, 15.5, 0), Vector(0, 0, 1), 0.7),
], False)
sketch7.addConstraint([
    Sketcher.Constraint("Coincident", 0, 2, 1, 1),
    Sketcher.Constraint("Tangent", 1, 2, 2, 2),
    Sketcher.Constraint("Tangent", 2, 1, 3, 1),
    Sketcher.Constraint("Tangent", 3, 2, 4, 2),
    Sketcher.Constraint("Tangent", 4, 1, 5, 1),
    Sketcher.Constraint("Coincident", 5, 2, 0, 1),
    Sketcher.Constraint("Coincident", 7, 2, 8, 1),
    Sketcher.Constraint("Tangent", 8, 2, 9, 2),
    Sketcher.Constraint("Tangent", 9, 1, 10, 1),
    Sketcher.Constraint("Tangent", 10, 2, 11, 2),
    Sketcher.Constraint("Tangent", 11, 1, 12, 1),
    Sketcher.Constraint("Coincident", 12, 2, 7, 1),
    Sketcher.Constraint("Horizontal", 0),
    Sketcher.Constraint("Vertical", 1),
    Sketcher.Constraint("Horizontal", 3),
    Sketcher.Constraint("Vertical", 5),
    Sketcher.Constraint("Horizontal", 7),
    Sketcher.Constraint("Vertical", 8),
    Sketcher.Constraint("Horizontal", 10),
    Sketcher.Constraint("Vertical", 12),
    Sketcher.Constraint("Equal", 2, 4),
    Sketcher.Constraint("Equal", 4, 6),
    Sketcher.Constraint("Equal", 6, 9),
    Sketcher.Constraint("Equal", 9, 11),
    Sketcher.Constraint("Equal", 11, 13),
    Sketcher.Constraint("Horizontal", 4, 3, 9, 3),
    Sketcher.Constraint("Horizontal", 6, 3, 13, 3),
    Sketcher.Constraint("Horizontal", 5, 2, 7, 2),
    Sketcher.Constraint("Equal", 0, 7),
    Sketcher.Constraint("Diameter", 6, Q("1.4 mm")),
    Sketcher.Constraint("DistanceX", 0, 2, 0, 1, Q("4 mm")),
    Sketcher.Constraint("DistanceY", 1, 1, 1, 2, Q("2.8 mm")),
    Sketcher.Constraint("DistanceX", 6, 3, -1, 1, Q("4 mm")),
    Sketcher.Constraint("DistanceX", -1, 1, 13, 3, Q("6 mm")),
    Sketcher.Constraint("DistanceX", 0, 2, -1, 1, Q("6 mm")),
    Sketcher.Constraint("DistanceY", -1, 1, 2, 1, Q("17 mm")),
    Sketcher.Constraint("DistanceX", -1, 1, 7, 2, Q("4 mm")),
    Sketcher.Constraint("DistanceY", 0, 2, 6, 3, Q("2 mm")),
])
sketch7.setExpression("Constraints[29]", "Params.sketch7_diameter")
sketch7.setExpression("Constraints[30]", "Params.sketch7_width")
sketch7.setExpression("Constraints[31]", "Params.sketch7_height")
pad3 = body.newObject("PartDesign::Pad", "Pad002")
pad3.Profile = sketch7
pad3.setExpression("Length", "Params.pad3_length")
pad3.Reversed = True

doc.recompute()
